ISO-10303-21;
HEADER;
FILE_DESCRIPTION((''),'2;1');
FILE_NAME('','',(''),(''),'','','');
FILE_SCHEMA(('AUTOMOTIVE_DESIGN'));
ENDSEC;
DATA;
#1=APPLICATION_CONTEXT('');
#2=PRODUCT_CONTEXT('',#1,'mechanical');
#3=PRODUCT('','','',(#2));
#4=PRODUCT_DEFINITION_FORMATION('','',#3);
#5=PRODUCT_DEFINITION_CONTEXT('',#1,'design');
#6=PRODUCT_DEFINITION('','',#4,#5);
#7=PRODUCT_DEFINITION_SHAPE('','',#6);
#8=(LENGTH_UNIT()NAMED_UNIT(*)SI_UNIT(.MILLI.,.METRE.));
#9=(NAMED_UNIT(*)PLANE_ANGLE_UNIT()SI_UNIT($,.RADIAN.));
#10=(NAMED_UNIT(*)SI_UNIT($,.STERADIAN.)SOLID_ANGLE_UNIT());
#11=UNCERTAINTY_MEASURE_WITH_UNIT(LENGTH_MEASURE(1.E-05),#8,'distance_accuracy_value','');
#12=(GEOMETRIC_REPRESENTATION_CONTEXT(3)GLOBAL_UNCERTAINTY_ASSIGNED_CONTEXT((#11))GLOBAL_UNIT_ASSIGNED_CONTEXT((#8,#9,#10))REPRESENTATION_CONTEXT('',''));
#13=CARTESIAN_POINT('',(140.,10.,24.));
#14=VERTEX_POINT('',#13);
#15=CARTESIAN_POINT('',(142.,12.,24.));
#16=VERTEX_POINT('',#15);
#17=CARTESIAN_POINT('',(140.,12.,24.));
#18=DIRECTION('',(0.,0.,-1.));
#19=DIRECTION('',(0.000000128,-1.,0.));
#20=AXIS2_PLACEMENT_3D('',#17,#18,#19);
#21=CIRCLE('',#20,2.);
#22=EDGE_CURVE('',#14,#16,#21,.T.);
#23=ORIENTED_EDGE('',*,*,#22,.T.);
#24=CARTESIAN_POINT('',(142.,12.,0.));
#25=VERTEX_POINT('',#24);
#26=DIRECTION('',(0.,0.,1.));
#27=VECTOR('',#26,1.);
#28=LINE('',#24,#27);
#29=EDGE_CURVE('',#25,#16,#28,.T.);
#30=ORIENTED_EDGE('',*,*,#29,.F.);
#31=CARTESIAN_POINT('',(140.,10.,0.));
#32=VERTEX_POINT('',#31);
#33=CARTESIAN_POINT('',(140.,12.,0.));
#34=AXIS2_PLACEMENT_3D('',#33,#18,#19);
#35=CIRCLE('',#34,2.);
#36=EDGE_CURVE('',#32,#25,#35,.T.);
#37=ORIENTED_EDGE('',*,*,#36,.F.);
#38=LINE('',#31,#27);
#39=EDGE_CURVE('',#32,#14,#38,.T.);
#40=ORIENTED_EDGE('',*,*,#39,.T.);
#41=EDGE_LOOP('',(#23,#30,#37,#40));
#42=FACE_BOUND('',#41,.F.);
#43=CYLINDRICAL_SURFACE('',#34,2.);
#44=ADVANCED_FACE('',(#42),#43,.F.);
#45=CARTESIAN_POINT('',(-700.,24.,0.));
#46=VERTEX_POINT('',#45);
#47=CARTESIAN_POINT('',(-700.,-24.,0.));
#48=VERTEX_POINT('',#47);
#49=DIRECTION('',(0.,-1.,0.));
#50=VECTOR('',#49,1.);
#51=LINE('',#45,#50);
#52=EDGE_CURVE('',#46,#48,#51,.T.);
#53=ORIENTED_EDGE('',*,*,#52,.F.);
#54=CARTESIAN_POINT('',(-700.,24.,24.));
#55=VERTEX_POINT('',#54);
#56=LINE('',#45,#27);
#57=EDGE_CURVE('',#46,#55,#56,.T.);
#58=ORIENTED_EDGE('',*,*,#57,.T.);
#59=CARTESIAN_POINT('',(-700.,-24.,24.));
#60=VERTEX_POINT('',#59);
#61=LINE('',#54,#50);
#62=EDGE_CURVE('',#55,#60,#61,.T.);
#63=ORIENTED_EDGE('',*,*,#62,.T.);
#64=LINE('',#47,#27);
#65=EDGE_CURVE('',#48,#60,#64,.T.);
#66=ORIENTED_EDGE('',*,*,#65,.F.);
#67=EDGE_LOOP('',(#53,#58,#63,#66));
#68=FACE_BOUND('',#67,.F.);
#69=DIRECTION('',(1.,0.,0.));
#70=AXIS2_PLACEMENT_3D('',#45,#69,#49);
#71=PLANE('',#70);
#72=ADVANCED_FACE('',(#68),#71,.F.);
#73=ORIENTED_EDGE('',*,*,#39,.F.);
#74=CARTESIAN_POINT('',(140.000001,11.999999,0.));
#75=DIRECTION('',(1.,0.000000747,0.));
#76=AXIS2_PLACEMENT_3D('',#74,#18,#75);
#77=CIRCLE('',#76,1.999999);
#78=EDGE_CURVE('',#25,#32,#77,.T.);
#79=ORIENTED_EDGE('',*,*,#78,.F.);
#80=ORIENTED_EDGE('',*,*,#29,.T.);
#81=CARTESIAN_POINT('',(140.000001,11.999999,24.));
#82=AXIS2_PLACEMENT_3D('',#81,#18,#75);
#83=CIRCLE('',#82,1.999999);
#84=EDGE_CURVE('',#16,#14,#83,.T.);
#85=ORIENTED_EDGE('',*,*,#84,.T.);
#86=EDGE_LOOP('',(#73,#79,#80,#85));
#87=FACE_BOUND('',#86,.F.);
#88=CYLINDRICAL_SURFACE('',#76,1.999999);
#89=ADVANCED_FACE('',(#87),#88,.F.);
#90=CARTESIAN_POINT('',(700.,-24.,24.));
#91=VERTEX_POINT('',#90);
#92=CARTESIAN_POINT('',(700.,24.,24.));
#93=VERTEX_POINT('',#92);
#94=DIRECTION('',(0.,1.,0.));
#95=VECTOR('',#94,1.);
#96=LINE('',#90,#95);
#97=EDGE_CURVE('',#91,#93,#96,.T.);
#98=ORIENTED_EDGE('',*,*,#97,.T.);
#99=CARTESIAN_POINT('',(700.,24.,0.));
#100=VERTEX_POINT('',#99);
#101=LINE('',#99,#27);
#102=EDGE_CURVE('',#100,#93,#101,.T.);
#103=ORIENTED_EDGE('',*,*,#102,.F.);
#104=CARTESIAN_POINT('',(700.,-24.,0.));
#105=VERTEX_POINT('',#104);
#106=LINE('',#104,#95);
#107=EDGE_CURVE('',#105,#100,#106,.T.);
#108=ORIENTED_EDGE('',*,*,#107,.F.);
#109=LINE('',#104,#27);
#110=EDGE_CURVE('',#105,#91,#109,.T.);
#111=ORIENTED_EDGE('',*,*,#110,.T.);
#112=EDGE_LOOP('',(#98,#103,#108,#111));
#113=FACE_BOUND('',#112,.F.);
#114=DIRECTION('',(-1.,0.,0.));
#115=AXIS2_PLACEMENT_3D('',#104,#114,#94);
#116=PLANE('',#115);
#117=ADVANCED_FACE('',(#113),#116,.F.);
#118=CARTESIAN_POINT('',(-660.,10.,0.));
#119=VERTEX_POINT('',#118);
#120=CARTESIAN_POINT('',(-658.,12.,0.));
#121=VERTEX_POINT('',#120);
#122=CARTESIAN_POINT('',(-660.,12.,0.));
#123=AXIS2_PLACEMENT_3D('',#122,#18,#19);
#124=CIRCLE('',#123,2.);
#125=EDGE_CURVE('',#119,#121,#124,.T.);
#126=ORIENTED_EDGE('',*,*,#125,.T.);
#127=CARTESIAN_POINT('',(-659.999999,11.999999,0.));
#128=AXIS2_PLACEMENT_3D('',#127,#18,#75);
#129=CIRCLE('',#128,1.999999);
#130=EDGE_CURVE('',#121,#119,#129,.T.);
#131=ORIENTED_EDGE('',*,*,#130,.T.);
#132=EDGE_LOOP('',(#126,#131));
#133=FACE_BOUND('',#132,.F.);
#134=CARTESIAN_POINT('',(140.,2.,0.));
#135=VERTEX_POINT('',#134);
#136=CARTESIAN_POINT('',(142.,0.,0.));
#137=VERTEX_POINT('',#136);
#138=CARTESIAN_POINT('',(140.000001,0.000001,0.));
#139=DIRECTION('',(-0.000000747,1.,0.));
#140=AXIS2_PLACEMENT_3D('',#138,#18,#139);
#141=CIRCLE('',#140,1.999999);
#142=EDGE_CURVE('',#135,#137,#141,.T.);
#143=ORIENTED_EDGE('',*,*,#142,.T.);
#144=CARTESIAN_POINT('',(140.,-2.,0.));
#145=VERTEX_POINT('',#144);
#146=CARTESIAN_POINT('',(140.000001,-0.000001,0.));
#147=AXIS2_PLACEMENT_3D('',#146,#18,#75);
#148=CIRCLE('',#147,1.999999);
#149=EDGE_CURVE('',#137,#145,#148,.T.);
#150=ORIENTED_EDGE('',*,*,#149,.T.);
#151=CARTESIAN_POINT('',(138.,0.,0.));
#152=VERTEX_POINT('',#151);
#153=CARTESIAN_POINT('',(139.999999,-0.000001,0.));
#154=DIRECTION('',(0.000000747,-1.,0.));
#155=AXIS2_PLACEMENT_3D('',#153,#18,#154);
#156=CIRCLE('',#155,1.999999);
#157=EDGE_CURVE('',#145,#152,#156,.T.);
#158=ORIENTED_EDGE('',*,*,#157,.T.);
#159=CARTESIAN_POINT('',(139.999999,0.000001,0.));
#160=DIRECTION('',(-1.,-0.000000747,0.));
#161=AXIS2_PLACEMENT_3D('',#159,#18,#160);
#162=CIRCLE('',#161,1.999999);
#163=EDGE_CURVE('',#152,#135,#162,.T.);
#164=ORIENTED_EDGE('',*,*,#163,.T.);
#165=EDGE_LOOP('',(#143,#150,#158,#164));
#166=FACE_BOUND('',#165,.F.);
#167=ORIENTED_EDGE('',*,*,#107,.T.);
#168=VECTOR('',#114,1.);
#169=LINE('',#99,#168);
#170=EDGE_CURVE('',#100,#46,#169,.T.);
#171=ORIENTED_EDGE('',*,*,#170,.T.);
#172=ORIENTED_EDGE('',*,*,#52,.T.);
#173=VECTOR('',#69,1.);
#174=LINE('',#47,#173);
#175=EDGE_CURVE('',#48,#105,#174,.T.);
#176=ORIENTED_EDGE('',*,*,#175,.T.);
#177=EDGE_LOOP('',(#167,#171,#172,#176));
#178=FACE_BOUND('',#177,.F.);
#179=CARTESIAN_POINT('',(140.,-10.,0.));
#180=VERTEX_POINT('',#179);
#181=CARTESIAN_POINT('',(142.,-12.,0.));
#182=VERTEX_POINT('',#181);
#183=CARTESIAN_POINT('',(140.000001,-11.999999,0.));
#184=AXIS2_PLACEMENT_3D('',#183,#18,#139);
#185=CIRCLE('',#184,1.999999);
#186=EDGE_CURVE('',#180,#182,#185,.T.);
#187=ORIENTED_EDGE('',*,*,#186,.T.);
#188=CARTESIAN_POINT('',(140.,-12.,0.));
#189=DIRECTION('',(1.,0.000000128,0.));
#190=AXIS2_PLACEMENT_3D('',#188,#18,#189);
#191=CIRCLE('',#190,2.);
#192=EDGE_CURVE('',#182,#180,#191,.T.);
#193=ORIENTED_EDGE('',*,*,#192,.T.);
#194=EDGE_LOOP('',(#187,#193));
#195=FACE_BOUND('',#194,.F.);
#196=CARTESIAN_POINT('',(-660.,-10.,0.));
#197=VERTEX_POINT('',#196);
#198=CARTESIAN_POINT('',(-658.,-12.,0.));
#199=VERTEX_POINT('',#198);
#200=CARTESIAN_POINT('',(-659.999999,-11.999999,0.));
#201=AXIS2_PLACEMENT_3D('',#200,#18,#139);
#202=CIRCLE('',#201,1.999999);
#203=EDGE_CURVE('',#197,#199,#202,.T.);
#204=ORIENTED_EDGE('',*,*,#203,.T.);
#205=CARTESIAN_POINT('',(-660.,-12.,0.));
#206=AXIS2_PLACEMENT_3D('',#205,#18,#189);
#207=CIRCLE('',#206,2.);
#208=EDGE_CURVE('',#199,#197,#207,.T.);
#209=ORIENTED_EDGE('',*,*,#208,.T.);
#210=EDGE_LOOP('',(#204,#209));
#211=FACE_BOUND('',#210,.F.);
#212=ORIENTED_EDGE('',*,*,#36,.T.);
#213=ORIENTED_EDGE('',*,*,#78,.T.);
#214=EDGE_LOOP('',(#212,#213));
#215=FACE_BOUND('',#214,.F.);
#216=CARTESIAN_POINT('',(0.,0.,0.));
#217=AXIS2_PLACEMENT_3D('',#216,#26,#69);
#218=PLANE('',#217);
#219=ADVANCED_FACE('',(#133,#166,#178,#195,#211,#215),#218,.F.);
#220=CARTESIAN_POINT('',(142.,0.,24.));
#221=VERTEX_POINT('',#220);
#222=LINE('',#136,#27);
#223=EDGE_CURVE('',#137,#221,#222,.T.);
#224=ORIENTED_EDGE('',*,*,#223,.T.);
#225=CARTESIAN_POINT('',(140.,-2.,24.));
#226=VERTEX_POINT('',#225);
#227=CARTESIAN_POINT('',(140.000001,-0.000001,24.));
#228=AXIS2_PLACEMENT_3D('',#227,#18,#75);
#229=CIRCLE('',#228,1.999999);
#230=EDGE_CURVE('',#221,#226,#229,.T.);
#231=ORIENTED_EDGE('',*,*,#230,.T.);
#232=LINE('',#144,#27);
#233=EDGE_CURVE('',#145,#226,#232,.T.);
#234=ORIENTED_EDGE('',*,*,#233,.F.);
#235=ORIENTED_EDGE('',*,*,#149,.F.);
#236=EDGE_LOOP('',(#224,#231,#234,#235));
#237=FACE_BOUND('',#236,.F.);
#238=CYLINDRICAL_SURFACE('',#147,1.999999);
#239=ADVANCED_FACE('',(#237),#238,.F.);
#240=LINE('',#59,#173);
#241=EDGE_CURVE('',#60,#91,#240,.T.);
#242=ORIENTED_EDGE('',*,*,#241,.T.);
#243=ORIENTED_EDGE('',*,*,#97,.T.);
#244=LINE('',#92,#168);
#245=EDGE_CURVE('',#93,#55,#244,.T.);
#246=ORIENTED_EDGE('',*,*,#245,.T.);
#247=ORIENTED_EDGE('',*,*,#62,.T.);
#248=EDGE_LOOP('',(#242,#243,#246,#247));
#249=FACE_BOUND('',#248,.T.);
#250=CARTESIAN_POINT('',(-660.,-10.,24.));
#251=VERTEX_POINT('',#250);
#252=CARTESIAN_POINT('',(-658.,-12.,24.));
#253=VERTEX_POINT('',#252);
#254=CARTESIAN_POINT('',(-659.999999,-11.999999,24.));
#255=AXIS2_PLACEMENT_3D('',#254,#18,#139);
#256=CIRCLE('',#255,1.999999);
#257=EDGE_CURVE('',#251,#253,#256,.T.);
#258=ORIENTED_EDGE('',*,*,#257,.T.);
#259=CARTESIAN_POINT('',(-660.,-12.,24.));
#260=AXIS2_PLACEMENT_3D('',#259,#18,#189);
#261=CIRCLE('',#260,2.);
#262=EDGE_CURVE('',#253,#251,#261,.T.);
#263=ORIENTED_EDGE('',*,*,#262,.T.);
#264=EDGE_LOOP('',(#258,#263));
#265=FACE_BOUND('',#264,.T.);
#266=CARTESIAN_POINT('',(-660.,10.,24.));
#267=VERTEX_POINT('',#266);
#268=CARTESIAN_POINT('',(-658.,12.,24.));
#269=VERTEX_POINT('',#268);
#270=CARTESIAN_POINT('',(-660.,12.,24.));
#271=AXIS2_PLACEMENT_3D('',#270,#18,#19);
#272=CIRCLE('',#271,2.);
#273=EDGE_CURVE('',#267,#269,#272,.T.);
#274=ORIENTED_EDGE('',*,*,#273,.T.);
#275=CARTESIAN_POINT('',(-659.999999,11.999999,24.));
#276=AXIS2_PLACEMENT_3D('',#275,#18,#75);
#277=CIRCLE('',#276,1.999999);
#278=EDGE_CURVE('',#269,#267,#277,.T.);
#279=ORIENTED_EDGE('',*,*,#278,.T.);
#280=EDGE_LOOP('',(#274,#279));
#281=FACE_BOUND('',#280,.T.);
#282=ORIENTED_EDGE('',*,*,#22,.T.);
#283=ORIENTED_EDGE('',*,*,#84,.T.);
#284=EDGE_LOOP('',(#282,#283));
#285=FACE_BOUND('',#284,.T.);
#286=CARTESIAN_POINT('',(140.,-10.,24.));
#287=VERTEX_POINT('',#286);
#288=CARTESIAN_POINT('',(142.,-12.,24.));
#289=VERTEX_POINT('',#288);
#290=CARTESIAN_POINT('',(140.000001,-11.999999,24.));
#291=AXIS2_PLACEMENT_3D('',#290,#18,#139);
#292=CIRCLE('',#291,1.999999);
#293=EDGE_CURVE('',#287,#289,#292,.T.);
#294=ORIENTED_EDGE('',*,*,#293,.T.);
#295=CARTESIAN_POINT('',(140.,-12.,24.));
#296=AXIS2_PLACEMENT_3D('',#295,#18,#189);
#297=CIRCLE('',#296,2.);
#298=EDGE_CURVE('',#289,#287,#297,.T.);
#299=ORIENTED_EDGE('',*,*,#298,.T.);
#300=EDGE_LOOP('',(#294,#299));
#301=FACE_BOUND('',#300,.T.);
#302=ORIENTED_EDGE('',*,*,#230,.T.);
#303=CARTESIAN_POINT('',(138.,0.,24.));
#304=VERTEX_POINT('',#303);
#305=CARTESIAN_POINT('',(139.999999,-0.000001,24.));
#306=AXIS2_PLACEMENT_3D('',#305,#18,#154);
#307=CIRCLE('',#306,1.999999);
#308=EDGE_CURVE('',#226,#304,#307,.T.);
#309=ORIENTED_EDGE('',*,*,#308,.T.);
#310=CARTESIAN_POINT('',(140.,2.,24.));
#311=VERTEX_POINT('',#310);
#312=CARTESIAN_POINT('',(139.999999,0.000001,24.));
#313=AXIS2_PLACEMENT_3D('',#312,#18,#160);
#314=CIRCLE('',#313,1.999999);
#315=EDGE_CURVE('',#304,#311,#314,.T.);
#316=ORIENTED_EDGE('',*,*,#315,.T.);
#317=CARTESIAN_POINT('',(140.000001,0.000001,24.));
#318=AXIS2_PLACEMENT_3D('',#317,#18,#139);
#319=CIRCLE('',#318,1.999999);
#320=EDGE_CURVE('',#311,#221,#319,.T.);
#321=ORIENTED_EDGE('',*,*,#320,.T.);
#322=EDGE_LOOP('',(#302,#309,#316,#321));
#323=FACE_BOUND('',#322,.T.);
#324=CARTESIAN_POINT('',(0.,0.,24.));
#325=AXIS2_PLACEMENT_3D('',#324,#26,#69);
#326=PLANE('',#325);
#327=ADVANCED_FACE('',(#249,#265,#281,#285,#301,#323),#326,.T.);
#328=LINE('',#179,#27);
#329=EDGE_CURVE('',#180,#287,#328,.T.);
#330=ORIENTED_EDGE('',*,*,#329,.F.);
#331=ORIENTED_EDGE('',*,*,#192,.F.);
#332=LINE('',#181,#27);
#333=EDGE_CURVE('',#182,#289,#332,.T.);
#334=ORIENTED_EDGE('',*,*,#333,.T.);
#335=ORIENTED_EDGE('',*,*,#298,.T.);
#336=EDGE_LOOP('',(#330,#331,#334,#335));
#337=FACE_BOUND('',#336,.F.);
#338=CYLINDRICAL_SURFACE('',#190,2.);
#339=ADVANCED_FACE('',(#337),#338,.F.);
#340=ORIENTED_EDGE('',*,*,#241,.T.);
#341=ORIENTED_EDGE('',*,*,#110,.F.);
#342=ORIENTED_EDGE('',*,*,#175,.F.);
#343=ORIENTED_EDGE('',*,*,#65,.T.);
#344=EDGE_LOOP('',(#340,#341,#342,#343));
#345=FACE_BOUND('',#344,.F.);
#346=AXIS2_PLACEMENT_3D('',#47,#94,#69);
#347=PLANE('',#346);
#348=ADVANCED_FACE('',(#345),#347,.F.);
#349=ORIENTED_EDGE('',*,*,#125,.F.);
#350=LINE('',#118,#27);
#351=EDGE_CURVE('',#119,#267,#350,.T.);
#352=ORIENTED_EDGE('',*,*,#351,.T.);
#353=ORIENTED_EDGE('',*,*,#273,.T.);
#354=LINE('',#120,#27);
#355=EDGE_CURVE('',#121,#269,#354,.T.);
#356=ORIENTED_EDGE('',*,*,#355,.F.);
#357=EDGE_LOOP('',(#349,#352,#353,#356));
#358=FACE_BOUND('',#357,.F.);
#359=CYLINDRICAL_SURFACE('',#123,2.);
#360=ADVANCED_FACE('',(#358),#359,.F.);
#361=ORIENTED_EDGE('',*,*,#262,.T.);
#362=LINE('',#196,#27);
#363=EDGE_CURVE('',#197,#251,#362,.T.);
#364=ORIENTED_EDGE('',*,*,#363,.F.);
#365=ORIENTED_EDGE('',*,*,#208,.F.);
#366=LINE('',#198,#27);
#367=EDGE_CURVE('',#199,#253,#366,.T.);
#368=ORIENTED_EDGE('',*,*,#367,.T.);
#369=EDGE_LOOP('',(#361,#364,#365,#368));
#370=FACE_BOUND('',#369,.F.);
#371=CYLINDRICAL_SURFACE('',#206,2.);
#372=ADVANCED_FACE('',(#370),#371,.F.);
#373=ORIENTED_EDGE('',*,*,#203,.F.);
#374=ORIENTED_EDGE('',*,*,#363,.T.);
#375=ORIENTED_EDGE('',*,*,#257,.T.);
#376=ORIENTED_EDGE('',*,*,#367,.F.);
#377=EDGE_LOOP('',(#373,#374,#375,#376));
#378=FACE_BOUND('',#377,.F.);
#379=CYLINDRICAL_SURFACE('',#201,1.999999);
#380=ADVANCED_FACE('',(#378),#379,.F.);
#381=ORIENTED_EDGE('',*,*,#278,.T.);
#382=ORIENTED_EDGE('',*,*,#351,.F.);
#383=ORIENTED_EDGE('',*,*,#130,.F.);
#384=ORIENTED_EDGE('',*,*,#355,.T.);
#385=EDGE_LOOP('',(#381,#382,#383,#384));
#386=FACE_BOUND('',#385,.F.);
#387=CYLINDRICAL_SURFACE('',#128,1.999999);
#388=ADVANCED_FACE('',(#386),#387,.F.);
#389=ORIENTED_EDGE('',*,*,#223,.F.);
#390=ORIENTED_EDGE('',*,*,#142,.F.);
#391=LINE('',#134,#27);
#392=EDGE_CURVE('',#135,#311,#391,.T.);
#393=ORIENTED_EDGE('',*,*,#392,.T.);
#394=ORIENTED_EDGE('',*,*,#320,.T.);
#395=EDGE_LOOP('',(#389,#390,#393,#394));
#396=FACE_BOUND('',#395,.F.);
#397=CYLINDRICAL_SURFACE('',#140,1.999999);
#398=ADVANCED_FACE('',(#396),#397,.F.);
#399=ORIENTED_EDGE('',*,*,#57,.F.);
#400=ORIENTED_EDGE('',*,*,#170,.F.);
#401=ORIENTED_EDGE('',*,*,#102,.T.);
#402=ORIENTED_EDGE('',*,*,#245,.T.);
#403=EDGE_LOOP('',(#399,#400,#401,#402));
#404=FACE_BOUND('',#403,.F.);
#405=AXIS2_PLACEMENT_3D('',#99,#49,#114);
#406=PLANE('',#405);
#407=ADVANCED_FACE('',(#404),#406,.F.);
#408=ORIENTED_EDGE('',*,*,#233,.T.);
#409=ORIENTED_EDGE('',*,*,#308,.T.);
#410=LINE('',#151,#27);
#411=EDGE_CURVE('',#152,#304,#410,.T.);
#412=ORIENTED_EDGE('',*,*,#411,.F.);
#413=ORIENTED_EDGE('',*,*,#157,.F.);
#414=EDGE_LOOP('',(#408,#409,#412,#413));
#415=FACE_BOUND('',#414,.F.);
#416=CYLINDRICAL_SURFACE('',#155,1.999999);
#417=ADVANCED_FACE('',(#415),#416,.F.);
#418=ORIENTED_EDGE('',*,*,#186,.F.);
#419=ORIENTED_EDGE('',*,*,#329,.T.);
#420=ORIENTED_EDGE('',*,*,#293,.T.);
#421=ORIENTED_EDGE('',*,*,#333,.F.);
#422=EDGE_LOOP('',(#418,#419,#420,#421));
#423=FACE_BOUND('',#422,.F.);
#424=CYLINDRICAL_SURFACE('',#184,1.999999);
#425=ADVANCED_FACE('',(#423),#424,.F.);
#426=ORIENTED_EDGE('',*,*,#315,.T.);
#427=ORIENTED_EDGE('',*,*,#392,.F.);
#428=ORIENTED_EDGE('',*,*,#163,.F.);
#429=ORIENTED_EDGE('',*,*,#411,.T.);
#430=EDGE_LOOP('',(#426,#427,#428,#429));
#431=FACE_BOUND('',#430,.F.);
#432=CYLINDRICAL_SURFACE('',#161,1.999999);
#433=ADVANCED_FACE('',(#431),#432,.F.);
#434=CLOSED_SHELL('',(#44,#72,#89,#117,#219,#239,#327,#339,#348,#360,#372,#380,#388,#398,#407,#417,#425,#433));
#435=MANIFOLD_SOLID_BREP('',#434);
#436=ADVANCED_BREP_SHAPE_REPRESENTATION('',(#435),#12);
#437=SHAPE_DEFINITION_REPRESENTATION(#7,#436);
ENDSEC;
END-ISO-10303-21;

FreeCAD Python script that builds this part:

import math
import FreeCAD as App
import Part
import Sketcher

V = App.Vector
Q = App.Units.Quantity

doc = App.newDocument("Part")
body = doc.addObject("PartDesign::Body", "Body")

# Sketch on XY plane
sketch1 = body.newObject("Sketcher::SketchObject", "Sketch")
sketch1.AttachmentSupport = (doc.getObject("XY_Plane"), [""])
sketch1.MapMode = "FlatFace"
sketch1.addGeometry(Part.LineSegment(V(-700, -24, 0), V(700, -24, 0)), False)
sketch1.addGeometry(Part.LineSegment(V(700, -24, 0), V(700, 24, 0)), False)
sketch1.addGeometry(Part.LineSegment(V(700, 24, 0), V(-700, 24, 0)), False)
sketch1.addGeometry(Part.LineSegment(V(-700, 24, 0), V(-700, -24, 0)), False)
sketch1.addGeometry(Part.ArcOfCircle(Part.Circle(V(-660, -12, 0), V(0, 0, 1), 2), math.radians(0), math.radians(90)), False)
sketch1.addGeometry(Part.ArcOfCircle(Part.Circle(V(-660, -12, 0), V(0, 0, 1), 2), math.radians(90), math.radians(360)), False)
sketch1.addGeometry(Part.ArcOfCircle(Part.Circle(V(140, -12, 0), V(0, 0, 1), 2), math.radians(0), math.radians(90)), False)
sketch1.addGeometry(Part.ArcOfCircle(Part.Circle(V(140, -12, 0), V(0, 0, 1), 2), math.radians(90), math.radians(360)), False)
sketch1.addGeometry(Part.ArcOfCircle(Part.Circle(V(140, 0, 0), V(0, 0, 1), 2), math.radians(-90), math.radians(0)), False)
sketch1.addGeometry(Part.ArcOfCircle(Part.Circle(V(140, 0, 0), V(0, 0, 1), 2), math.radians(180), math.radians(270)), False)
sketch1.addGeometry(Part.ArcOfCircle(Part.Circle(V(140, 0, 0), V(0, 0, 1), 2), math.radians(90), math.radians(180)), False)
sketch1.addGeometry(Part.ArcOfCircle(Part.Circle(V(140, 0, 0), V(0, 0, 1), 2), math.radians(0), math.radians(90)), False)
sketch1.addGeometry(Part.ArcOfCircle(Part.Circle(V(-660, 12, 0), V(0, 0, 1), 2), math.radians(0), math.radians(270)), False)
sketch1.addGeometry(Part.ArcOfCircle(Part.Circle(V(-660, 12, 0), V(0, 0, 1), 2), math.radians(-90), math.radians(0)), False)
sketch1.addGeometry(Part.ArcOfCircle(Part.Circle(V(140, 12, 0), V(0, 0, 1), 2), math.radians(0), math.radians(270)), False)
sketch1.addGeometry(Part.ArcOfCircle(Part.Circle(V(140, 12, 0), V(0, 0, 1), 2), math.radians(-90), math.radians(0)), False)
sketch1.addConstraint(Sketcher.Constraint("Coincident", 0, 2, 1, 1))
sketch1.addConstraint(Sketcher.Constraint("Coincident", 1, 2, 2, 1))
sketch1.addConstraint(Sketcher.Constraint("Coincident", 2, 2, 3, 1))
sketch1.addConstraint(Sketcher.Constraint("Coincident", 3, 2, 0, 1))
sketch1.addConstraint(Sketcher.Constraint("Tangent", 4, 1, 5, 2))
sketch1.addConstraint(Sketcher.Constraint("Coincident", 5, 1, 4, 2))
sketch1.addConstraint(Sketcher.Constraint("Tangent", 6, 1, 7, 2))
sketch1.addConstraint(Sketcher.Constraint("Coincident", 7, 1, 6, 2))
sketch1.addConstraint(Sketcher.Constraint("Tangent", 8, 1, 9, 2))
sketch1.addConstraint(Sketcher.Constraint("Tangent", 9, 1, 10, 2))
sketch1.addConstraint(Sketcher.Constraint("Tangent", 10, 1, 11, 2))
sketch1.addConstraint(Sketcher.Constraint("Tangent", 11, 1, 8, 2))
sketch1.addConstraint(Sketcher.Constraint("Tangent", 12, 1, 13, 2))
sketch1.addConstraint(Sketcher.Constraint("Coincident", 13, 1, 12, 2))
sketch1.addConstraint(Sketcher.Constraint("Tangent", 14, 1, 15, 2))
sketch1.addConstraint(Sketcher.Constraint("Coincident", 15, 1, 14, 2))
sketch1.addConstraint(Sketcher.Constraint("Horizontal", 0))
sketch1.addConstraint(Sketcher.Constraint("Vertical", 1))
sketch1.addConstraint(Sketcher.Constraint("Horizontal", 2))
sketch1.addConstraint(Sketcher.Constraint("Vertical", 3))
sketch1.addConstraint(Sketcher.Constraint("Equal", 5, 6))
sketch1.addConstraint(Sketcher.Constraint("Equal", 7, 8))
sketch1.addConstraint(Sketcher.Constraint("Equal", 8, 9))
sketch1.addConstraint(Sketcher.Constraint("Equal", 11, 12))
sketch1.addConstraint(Sketcher.Constraint("Equal", 13, 14))
sketch1.addConstraint(Sketcher.Constraint("Symmetric", 0, 2, 2, 2, -1, 1))
sketch1.addConstraint(Sketcher.Constraint("Symmetric", 4, 3, 12, 3, -1))
sketch1.addConstraint(Sketcher.Constraint("Symmetric", 6, 3, 14, 3, -1))
sketch1.addConstraint(Sketcher.Constraint("Symmetric", 8, 1, 10, 1, -1))
sketch1.addConstraint(Sketcher.Constraint("PointOnObject", 9, 1, -1))
sketch1.addConstraint(Sketcher.Constraint("PointOnObject", 11, 1, -1))
sketch1.addConstraint(Sketcher.Constraint("Horizontal", 5, 3, 6, 3))
sketch1.addConstraint(Sketcher.Constraint("Horizontal", 7, 3, 4, 1))
sketch1.addConstraint(Sketcher.Constraint("Horizontal", 4, 1, 6, 1))
sketch1.addConstraint(Sketcher.Constraint("Horizontal", 15, 3, 12, 1))
sketch1.addConstraint(Sketcher.Constraint("Horizontal", 12, 1, 14, 1))
sketch1.addConstraint(Sketcher.Constraint("Vertical", 7, 3, 8, 3))
sketch1.addConstraint(Sketcher.Constraint("Vertical", 13, 3, 5, 1))
sketch1.addConstraint(Sketcher.Constraint("Vertical", 15, 3, 7, 1))
sketch1.addConstraint(Sketcher.Constraint("Vertical", 7, 1, 8, 1))
sketch1.addConstraint(Sketcher.Constraint("Vertical", 5, 1, 13, 1))
sketch1.addConstraint(Sketcher.Constraint("Vertical", 10, 1, 15, 1))
sketch1.addConstraint(Sketcher.Constraint("Radius", 4, Q("1.999999 mm")))
sketch1.addConstraint(Sketcher.Constraint("DistanceX", 0, 1, 0, 2, Q("1400 mm")))
sketch1.addConstraint(Sketcher.Constraint("DistanceY", 1, 1, 1, 2, Q("48 mm")))
sketch1.addConstraint(Sketcher.Constraint("DistanceX", 4, 3, -1, 1, Q("659.999999 mm")))
sketch1.addConstraint(Sketcher.Constraint("DistanceY", 4, 3, -1, 1, Q("11.999999 mm")))
sketch1.addConstraint(Sketcher.Constraint("DistanceX", -1, 1, 6, 3, Q("140.000001 mm")))
pad1 = body.newObject("PartDesign::Pad", "Pad")
pad1.Profile = sketch1
pad1.Length = 24

doc.recompute()
